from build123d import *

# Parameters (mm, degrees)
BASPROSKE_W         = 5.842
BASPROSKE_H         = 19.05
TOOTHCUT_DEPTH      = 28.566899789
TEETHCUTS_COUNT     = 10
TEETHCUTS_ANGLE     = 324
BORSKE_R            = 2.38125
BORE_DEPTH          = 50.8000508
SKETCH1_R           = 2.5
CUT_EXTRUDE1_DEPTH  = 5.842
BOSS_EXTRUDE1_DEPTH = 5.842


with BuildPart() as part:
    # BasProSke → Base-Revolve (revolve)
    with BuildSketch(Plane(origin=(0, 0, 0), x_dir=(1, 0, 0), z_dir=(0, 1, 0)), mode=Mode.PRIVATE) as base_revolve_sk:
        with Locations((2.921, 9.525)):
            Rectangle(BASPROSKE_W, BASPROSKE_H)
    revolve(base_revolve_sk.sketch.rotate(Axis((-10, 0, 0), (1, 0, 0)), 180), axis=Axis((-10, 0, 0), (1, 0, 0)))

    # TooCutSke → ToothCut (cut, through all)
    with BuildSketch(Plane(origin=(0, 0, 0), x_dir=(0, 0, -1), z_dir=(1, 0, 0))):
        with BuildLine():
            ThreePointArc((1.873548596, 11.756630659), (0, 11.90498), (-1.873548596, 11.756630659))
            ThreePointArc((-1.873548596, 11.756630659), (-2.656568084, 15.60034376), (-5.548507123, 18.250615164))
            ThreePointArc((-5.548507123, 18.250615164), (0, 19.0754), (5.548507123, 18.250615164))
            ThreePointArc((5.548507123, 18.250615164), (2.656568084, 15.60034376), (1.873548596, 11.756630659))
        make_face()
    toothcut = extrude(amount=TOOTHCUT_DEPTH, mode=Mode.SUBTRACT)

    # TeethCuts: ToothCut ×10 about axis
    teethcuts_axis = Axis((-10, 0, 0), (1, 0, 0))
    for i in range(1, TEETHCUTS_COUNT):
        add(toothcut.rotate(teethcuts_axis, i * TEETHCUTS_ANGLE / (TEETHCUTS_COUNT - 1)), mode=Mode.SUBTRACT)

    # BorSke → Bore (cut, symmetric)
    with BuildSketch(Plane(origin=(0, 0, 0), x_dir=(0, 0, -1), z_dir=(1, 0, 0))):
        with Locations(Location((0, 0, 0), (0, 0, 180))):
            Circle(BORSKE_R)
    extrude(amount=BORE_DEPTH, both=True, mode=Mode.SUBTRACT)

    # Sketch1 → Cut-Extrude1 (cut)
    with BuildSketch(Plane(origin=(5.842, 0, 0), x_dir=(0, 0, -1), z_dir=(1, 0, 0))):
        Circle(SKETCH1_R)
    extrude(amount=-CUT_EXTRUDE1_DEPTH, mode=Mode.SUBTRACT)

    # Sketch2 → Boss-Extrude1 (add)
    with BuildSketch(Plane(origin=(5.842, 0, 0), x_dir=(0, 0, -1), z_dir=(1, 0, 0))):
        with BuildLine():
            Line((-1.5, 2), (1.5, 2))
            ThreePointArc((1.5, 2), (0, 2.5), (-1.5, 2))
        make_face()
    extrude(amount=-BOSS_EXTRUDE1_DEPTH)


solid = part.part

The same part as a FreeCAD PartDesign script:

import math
import FreeCAD as App
import Part
import Sketcher

V = App.Vector
Q = App.Units.Quantity


def add_polygon(sketch, points):
    """Adds a closed chain of lines whose ends are joined by coincident constraints."""
    first, n = sketch.GeometryCount, len(points)
    for a, b in zip(points, points[1:] + points[:1]):
        sketch.addGeometry(Part.LineSegment(App.Vector(*a, 0), App.Vector(*b, 0)), False)
    for i in range(n):
        sketch.addConstraint(Sketcher.Constraint("Coincident", first + i, 2, first + (i + 1) % n, 1))

doc = App.newDocument("Part")
body = doc.addObject("PartDesign::Body", "Body")

# Sketch on XZ plane
sketch1 = body.newObject("Sketcher::SketchObject", "Sketch")
sketch1.AttachmentSupport = (doc.getObject("XZ_Plane"), [""])
sketch1.MapMode = "FlatFace"
add_polygon(sketch1, [(0, -19), (0, 0), (6, 0), (6, -19)])  # lines 0-3
sketch1.addConstraint([
    Sketcher.Constraint("Vertical", 0),
    Sketcher.Constraint("Horizontal", 1),
    Sketcher.Constraint("Vertical", 2),
    Sketcher.Constraint("Horizontal", 3),
    Sketcher.Constraint("Coincident", 0, 2, -1, 1),
    Sketcher.Constraint("DistanceX", 1, 1, 1, 2, Q("0.23 in")),
    Sketcher.Constraint("DistanceY", 0, 1, 0, 2, Q("0.75 in")),
])
revolution = body.newObject("PartDesign::Revolution", "Revolution")
revolution.Profile = sketch1
revolution.ReferenceAxis = (sketch1, ["H_Axis"])
revolution.Angle = 360

# Sketch on YZ plane
sketch2 = body.newObject("Sketcher::SketchObject", "Sketch001")
sketch2.AttachmentSupport = (doc.getObject("YZ_Plane"), [""])
sketch2.MapMode = "FlatFace"
sketch2.addGeometry([
    Part.ArcOfCircle(Part.Circle(V(0, 0, 0), V(0, 0, 1), 11.9), math.radians(-9.05), math.radians(9.05)),
    Part.ArcOfCircle(Part.Circle(V(12.5, -8.2, 0), V(0, 0, 1), 6.3), math.radians(25), math.radians(96)),
    Part.ArcOfCircle(Part.Circle(V(0, 0, 0), V(0, 0, 1), 19.1), math.radians(-17), math.radians(17)),
    Part.ArcOfCircle(Part.Circle(V(12.5, 8.2, 0), V(0, 0, 1), 6.3), math.radians(-96), math.radians(-25)),
], False)
sketch2.addConstraint([
    Sketcher.Constraint("Coincident", 0, 1, 1, 2),
    Sketcher.Constraint("Coincident", 1, 1, 2, 1),
    Sketcher.Constraint("Coincident", 2, 2, 3, 2),
    Sketcher.Constraint("Coincident", 3, 1, 0, 2),
    Sketcher.Constraint("Coincident", 0, 3, -1, 1),
    Sketcher.Constraint("Coincident", 2, 3, -1, 1),
    Sketcher.Constraint("Equal", 1, 3),
    Sketcher.Constraint("Symmetric", 1, 3, 3, 3, -1),
    Sketcher.Constraint("Radius", 1, Q("0.25 in")),
    Sketcher.Constraint("Radius", 2, Q("0.751 in")),
    Sketcher.Constraint("Radius", 0, Q("0.4687 in")),
    Sketcher.Constraint("DistanceX", 0, 1, 1, 3, Q("0.0282001 in")),
    Sketcher.Constraint("DistanceX", 1, 3, 1, 1, 5.777702),
])
pocket1 = body.newObject("PartDesign::Pocket", "Pocket")
pocket1.Profile = sketch2
pocket1.Type = "ThroughAll"
pocket1.Reversed = True
doc.recompute()

polarpattern = body.newObject("PartDesign::PolarPattern", "PolarPattern")
polarpattern.Originals = [pocket1]
polarpattern.Axis = (doc.getObject("X_Axis"), [""])
polarpattern.Angle = 360
polarpattern.Occurrences = 10
body.Tip = polarpattern

# Sketch on YZ plane
sketch3 = body.newObject("Sketcher::SketchObject", "Sketch002")
sketch3.AttachmentSupport = (doc.getObject("YZ_Plane"), [""])
sketch3.MapMode = "FlatFace"
sketch3.addGeometry(Part.Circle(V(0, 0, 0), V(0, 0, 1), 2.4), False)
sketch3.addConstraint([
    Sketcher.Constraint("Coincident", 0, 3, -1, 1),
    Sketcher.Constraint("Diameter", 0, Q("0.1875 in")),
])
pocket2 = body.newObject("PartDesign::Pocket", "Pocket001")
pocket2.Profile = sketch3
pocket2.Length = 101.600102
pocket2.Midplane = True

# Sketch on YZ plane
sketch4 = body.newObject("Sketcher::SketchObject", "Sketch003")
sketch4.AttachmentSupport = (doc.getObject("YZ_Plane"), [""])
sketch4.MapMode = "FlatFace"
sketch4.AttachmentOffset = App.Placement(V(0, 0, 0.23 * 25.4), App.Rotation())
sketch4.addGeometry(Part.Circle(V(0, 0, 0), V(0, 0, 1), 2.5), False)
sketch4.addConstraint([
    Sketcher.Constraint("Coincident", 0, 3, -1, 1),
    Sketcher.Constraint("Diameter", 0, 5.0),
])
pocket3 = body.newObject("PartDesign::Pocket", "Pocket002")
pocket3.Profile = sketch4
pocket3.Length = Q("0.23 in")

# Sketch on YZ plane
sketch5 = body.newObject("Sketcher::SketchObject", "Sketch004")
sketch5.AttachmentSupport = (doc.getObject("YZ_Plane"), [""])
sketch5.MapMode = "FlatFace"
sketch5.AttachmentOffset = App.Placement(V(0, 0, 0.23 * 25.4), App.Rotation())
sketch5.addGeometry([
    Part.LineSegment(V(2, 1.5, 0), V(2, -1.5, 0)),
    Part.ArcOfCircle(Part.Circle(V(0, 0, 0), V(0, 0, 1), 2.5), math.radians(-37), math.radians(37)),
], False)
sketch5.addConstraint([
    Sketcher.Constraint("Coincident", 0, 1, 1, 2),
    Sketcher.Constraint("Coincident", 1, 1, 0, 2),
    Sketcher.Constraint("Vertical", 0),
    Sketcher.Constraint("Coincident", 1, 3, -1, 1),
    Sketcher.Constraint("Radius", 1, 2.5),
    Sketcher.Constraint("DistanceY", 0, 2, 0, 1, 3.0),
])
pad1 = body.newObject("PartDesign::Pad", "Pad")
pad1.Profile = sketch5
pad1.Length = Q("0.23 in")
pad1.Reversed = True

doc.recompute()
